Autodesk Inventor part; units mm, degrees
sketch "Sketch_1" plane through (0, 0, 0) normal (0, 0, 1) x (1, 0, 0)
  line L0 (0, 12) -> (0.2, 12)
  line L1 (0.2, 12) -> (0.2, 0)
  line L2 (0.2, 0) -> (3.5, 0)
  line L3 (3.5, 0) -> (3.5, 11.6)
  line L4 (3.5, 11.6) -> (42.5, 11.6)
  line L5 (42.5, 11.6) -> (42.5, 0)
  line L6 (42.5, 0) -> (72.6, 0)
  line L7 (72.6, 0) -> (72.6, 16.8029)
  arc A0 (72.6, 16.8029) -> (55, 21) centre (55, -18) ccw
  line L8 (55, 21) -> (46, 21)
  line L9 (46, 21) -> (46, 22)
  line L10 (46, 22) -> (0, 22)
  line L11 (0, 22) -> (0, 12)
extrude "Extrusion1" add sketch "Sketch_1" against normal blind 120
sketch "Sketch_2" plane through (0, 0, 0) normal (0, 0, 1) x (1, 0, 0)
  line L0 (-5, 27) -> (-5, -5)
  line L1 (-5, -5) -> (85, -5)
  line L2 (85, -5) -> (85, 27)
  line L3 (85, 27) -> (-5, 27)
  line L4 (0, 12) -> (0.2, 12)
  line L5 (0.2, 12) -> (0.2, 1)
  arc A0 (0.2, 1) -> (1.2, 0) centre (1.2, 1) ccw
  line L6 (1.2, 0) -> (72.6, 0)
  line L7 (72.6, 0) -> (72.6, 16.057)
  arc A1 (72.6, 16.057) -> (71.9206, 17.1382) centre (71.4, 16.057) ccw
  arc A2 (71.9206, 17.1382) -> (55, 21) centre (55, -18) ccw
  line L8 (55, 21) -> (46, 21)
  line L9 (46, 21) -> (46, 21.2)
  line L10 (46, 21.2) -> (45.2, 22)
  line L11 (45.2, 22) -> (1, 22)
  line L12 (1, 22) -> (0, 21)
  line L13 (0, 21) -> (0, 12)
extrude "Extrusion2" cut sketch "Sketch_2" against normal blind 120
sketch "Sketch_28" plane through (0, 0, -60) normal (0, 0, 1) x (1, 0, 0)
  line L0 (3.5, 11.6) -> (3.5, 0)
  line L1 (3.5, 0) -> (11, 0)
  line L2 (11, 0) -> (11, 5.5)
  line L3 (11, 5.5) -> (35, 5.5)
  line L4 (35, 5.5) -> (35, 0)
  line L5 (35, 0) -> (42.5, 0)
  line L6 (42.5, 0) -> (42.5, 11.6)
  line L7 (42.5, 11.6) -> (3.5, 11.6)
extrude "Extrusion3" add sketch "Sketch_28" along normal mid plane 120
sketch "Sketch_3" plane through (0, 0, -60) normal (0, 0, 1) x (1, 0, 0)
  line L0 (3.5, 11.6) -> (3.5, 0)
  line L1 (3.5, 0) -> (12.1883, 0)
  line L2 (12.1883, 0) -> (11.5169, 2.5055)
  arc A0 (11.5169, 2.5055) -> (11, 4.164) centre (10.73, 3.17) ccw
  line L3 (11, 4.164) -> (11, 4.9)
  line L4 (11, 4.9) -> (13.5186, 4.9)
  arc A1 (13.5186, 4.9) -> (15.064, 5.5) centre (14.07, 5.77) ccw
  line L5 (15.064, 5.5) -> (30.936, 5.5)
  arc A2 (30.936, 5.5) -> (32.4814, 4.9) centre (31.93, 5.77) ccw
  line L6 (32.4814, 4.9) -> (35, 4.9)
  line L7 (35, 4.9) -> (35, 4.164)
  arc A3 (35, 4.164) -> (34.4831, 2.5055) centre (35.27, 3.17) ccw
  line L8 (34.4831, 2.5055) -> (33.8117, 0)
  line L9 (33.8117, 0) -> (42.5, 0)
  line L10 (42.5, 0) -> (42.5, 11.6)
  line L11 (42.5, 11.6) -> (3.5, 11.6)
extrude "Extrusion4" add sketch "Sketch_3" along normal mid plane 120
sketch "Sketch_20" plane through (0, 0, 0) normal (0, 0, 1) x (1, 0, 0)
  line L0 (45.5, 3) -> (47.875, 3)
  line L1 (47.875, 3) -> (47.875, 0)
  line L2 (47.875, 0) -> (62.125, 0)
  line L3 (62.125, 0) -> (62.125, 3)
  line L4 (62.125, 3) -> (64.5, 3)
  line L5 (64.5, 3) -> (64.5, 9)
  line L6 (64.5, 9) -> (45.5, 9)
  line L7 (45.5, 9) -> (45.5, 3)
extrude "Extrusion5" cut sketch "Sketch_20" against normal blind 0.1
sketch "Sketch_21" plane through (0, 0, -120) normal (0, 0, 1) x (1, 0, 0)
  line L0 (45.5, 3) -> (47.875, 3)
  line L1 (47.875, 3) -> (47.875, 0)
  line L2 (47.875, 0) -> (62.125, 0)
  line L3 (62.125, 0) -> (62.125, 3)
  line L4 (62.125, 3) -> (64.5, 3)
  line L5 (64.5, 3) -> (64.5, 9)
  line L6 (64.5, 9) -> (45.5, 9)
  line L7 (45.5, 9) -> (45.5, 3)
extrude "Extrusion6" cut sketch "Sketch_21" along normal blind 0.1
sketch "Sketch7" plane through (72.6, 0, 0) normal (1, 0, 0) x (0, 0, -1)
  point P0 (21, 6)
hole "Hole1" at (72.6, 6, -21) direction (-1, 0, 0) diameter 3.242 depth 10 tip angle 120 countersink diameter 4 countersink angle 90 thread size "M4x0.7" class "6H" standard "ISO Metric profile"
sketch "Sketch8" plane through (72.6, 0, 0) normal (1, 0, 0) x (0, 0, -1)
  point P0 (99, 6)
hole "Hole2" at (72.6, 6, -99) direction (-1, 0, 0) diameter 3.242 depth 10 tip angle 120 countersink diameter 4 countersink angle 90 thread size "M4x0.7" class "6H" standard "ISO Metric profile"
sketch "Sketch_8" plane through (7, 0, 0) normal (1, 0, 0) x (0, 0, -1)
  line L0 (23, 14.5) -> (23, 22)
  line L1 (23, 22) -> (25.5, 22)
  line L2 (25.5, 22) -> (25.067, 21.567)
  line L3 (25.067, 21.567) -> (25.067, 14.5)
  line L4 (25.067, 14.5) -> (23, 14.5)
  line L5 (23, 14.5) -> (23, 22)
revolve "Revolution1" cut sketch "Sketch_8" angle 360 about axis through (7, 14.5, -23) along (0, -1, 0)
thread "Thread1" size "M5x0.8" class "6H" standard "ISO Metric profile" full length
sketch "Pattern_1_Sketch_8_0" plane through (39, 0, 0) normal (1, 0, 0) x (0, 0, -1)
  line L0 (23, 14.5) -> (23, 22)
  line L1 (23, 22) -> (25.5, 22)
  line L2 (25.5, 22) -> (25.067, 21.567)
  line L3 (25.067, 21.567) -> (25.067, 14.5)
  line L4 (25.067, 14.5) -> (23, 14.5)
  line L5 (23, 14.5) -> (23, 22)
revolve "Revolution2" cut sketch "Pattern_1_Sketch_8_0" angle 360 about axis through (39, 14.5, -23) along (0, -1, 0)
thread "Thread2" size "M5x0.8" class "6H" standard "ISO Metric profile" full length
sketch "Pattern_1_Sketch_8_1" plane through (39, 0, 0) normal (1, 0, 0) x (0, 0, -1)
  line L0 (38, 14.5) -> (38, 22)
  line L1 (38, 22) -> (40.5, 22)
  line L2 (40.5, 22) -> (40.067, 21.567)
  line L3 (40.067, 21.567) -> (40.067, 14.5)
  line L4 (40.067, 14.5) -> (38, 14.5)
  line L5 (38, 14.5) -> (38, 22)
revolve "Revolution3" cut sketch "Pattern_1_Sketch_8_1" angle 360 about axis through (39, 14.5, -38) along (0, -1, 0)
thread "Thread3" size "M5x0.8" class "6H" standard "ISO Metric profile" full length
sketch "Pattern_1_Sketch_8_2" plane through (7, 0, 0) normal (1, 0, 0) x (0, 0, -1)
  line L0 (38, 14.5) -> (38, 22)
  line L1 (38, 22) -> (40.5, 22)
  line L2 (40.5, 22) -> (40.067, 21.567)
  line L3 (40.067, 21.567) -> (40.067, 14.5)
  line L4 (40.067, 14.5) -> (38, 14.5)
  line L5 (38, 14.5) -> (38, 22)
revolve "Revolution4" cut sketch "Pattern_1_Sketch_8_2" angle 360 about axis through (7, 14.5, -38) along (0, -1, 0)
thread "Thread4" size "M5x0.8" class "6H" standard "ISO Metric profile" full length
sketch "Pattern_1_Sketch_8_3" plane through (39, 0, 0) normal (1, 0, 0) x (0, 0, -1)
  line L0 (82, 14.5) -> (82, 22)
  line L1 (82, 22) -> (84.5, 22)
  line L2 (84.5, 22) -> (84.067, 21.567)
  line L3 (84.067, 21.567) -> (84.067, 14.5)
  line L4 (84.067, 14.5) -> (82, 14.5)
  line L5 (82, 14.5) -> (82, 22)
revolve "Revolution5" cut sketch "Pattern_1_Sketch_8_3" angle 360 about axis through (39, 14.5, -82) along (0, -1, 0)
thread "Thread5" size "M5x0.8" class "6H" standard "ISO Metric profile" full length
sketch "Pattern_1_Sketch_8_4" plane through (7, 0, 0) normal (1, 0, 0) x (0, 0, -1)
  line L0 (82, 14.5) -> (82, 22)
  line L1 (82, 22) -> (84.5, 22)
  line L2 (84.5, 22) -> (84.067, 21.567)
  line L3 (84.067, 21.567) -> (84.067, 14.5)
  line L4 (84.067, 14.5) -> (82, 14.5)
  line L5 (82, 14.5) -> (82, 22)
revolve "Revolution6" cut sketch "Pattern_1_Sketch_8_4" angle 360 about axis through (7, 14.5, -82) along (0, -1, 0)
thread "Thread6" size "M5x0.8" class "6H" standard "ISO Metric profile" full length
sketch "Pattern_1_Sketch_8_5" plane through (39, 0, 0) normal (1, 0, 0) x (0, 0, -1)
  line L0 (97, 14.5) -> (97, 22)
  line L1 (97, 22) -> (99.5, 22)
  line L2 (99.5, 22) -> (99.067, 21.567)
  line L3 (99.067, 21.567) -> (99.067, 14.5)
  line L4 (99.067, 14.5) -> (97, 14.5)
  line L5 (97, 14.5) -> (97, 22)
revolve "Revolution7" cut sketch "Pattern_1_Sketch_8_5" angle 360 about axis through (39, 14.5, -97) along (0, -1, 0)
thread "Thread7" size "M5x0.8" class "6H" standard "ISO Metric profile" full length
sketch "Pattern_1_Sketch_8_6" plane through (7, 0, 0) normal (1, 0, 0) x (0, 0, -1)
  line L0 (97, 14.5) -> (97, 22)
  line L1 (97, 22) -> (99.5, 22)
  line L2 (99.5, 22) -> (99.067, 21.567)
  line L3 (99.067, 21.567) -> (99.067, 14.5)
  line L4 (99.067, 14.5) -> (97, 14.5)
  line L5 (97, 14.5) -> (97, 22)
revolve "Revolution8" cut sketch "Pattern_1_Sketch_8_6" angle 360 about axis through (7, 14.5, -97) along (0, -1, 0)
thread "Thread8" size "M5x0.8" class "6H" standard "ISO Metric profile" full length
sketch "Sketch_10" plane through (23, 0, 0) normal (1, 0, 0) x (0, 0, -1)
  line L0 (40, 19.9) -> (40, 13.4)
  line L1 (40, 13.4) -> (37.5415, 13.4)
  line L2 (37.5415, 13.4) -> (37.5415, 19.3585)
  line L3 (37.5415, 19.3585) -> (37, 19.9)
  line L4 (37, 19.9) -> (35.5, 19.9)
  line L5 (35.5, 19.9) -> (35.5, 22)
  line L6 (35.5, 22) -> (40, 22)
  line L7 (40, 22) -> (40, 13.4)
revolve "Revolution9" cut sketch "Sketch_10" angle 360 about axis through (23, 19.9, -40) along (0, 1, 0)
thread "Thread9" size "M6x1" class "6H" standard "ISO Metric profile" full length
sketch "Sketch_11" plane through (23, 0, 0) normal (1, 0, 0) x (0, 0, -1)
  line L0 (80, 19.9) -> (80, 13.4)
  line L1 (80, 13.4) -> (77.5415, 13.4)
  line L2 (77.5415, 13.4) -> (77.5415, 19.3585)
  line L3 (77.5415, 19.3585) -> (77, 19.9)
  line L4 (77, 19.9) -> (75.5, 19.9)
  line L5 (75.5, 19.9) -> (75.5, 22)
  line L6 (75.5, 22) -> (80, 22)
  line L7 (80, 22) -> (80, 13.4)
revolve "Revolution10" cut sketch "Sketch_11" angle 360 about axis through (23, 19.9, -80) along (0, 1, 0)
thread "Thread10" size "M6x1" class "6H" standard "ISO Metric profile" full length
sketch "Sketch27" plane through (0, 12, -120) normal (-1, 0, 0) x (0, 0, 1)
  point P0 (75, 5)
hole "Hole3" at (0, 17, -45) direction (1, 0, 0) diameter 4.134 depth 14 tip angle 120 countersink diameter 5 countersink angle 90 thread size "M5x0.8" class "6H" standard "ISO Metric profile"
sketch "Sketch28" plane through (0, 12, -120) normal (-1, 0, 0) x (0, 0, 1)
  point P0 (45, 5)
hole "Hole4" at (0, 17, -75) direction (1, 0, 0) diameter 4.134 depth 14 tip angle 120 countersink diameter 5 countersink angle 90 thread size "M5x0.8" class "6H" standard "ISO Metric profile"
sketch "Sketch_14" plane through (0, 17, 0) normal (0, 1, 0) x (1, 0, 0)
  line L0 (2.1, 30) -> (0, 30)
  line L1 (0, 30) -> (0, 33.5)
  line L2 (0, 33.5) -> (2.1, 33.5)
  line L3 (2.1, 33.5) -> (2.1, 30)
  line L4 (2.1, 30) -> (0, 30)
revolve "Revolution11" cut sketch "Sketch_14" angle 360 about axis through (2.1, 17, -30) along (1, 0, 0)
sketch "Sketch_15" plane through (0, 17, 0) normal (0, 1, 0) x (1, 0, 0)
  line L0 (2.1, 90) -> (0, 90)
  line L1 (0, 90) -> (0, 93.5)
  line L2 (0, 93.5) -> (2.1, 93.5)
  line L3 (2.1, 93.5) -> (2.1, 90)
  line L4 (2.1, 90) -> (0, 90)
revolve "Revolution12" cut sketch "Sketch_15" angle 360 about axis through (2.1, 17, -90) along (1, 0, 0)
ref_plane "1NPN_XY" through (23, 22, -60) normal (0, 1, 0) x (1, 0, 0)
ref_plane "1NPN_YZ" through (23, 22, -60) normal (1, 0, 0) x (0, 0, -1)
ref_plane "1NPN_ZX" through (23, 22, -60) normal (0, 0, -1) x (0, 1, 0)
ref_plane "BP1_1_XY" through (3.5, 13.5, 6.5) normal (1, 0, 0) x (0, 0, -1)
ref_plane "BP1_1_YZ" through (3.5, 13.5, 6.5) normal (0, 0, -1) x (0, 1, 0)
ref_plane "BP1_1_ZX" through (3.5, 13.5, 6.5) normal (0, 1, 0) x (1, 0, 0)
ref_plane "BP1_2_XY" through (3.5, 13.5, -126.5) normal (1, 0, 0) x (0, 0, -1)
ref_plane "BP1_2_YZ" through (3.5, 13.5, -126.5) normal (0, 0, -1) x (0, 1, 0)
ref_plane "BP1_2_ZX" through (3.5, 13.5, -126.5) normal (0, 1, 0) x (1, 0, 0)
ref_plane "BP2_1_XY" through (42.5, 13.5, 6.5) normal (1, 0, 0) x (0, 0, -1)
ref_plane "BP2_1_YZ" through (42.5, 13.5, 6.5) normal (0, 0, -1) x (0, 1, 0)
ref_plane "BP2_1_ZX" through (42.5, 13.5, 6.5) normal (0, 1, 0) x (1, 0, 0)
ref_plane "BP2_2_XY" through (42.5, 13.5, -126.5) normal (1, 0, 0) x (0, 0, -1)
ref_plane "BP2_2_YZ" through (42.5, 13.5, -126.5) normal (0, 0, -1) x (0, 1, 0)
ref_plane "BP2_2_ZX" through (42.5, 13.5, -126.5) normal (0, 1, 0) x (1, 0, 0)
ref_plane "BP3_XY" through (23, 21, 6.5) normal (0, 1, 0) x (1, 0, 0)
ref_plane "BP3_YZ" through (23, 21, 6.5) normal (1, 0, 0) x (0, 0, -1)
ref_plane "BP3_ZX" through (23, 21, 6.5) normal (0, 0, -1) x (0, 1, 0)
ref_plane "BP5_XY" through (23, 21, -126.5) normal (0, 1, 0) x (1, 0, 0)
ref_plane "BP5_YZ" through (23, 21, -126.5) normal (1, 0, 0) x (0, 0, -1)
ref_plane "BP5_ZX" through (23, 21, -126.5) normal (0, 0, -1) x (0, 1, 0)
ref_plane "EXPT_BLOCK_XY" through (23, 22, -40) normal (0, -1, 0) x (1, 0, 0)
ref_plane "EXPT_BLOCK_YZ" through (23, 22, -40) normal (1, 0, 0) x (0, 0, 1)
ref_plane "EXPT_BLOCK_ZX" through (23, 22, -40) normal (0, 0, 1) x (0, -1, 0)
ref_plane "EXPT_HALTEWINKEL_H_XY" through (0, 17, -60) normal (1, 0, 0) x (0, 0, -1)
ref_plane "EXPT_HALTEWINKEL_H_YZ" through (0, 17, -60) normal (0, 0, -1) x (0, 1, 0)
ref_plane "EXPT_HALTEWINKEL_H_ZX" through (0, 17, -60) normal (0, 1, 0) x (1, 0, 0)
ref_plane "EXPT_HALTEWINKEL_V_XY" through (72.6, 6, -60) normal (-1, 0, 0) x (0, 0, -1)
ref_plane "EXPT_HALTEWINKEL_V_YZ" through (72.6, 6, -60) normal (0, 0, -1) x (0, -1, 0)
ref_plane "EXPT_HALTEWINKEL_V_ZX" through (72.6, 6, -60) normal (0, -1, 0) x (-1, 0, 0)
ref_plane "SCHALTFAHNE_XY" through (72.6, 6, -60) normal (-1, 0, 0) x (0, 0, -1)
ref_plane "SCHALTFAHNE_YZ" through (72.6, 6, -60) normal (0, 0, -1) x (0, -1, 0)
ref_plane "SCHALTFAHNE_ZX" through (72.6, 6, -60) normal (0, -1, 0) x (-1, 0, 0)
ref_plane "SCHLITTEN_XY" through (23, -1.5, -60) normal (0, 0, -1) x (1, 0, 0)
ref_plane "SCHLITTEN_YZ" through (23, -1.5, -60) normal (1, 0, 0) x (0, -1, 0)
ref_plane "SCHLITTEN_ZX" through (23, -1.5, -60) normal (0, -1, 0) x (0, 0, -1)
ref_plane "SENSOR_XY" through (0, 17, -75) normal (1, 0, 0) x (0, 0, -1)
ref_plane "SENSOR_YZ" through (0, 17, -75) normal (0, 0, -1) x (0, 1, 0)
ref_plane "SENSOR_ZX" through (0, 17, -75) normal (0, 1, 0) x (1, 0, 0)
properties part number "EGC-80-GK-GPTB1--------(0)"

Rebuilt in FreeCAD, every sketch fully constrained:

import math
import FreeCAD as App
import Part
import Sketcher

V = App.Vector
Q = App.Units.Quantity


def add_polygon(sketch, points):
    """Adds a closed chain of lines whose ends are joined by coincident constraints."""
    first, n = sketch.GeometryCount, len(points)
    for a, b in zip(points, points[1:] + points[:1]):
        sketch.addGeometry(Part.LineSegment(App.Vector(*a, 0), App.Vector(*b, 0)), False)
    for i in range(n):
        sketch.addConstraint(Sketcher.Constraint("Coincident", first + i, 2, first + (i + 1) % n, 1))

doc = App.newDocument("Part")
body = doc.addObject("PartDesign::Body", "Body")

sketch1 = body.newObject("Sketcher::SketchObject", "Sketch")
sketch1.AttachmentSupport = (doc.getObject("XY_Plane"), [""])
sketch1.MapMode = "FlatFace"
sketch1.addGeometry([
    Part.LineSegment(V(0, 22, 0), V(0, 12, 0)),
    Part.LineSegment(V(0, 12, 0), V(0.2, 12, 0)),
    Part.LineSegment(V(0.2, 12, 0), V(0.2, 0, 0)),
    Part.LineSegment(V(0.2, 0, 0), V(3.5, 0, 0)),
    Part.LineSegment(V(3.5, 0, 0), V(3.5, 11.6, 0)),
    Part.LineSegment(V(3.5, 11.6, 0), V(42.5, 11.6, 0)),
    Part.LineSegment(V(42.5, 11.6, 0), V(42.5, 0, 0)),
    Part.LineSegment(V(42.5, 0, 0), V(72.6, 0, 0)),
    Part.LineSegment(V(72.6, 0, 0), V(72.6, 16.8, 0)),
    Part.ArcOfCircle(Part.Circle(V(55, -18, 0), V(0, 0, 1), 39), math.radians(63), math.radians(90)),
    Part.LineSegment(V(55, 21, 0), V(46, 21, 0)),
    Part.LineSegment(V(46, 21, 0), V(46, 22, 0)),
    Part.LineSegment(V(46, 22, 0), V(0, 22, 0)),
], False)
sketch1.addConstraint([
    Sketcher.Constraint("Coincident", 0, 2, 1, 1),
    Sketcher.Constraint("Coincident", 1, 2, 2, 1),
    Sketcher.Constraint("Coincident", 2, 2, 3, 1),
    Sketcher.Constraint("Coincident", 3, 2, 4, 1),
    Sketcher.Constraint("Coincident", 4, 2, 5, 1),
    Sketcher.Constraint("Coincident", 5, 2, 6, 1),
    Sketcher.Constraint("Coincident", 6, 2, 7, 1),
    Sketcher.Constraint("Coincident", 7, 2, 8, 1),
    Sketcher.Constraint("Coincident", 8, 2, 9, 1),
    Sketcher.Constraint("Tangent", 9, 2, 10, 1),
    Sketcher.Constraint("Coincident", 10, 2, 11, 1),
    Sketcher.Constraint("Coincident", 11, 2, 12, 1),
    Sketcher.Constraint("Coincident", 12, 2, 0, 1),
    Sketcher.Constraint("Vertical", 0),
    Sketcher.Constraint("Horizontal", 1),
    Sketcher.Constraint("Vertical", 2),
    Sketcher.Constraint("Horizontal", 3),
    Sketcher.Constraint("Vertical", 4),
    Sketcher.Constraint("Horizontal", 5),
    Sketcher.Constraint("Vertical", 6),
    Sketcher.Constraint("Horizontal", 7),
    Sketcher.Constraint("Vertical", 8),
    Sketcher.Constraint("Horizontal", 10),
    Sketcher.Constraint("Vertical", 11),
    Sketcher.Constraint("Horizontal", 12),
    Sketcher.Constraint("PointOnObject", 0, 2, -2),
    Sketcher.Constraint("PointOnObject", 2, 2, -1),
    Sketcher.Constraint("PointOnObject", 6, 2, -1),
    Sketcher.Constraint("Radius", 9, 39.0),
    Sketcher.Constraint("DistanceX", 5, 1, 5, 2, 39.0),
    Sketcher.Constraint("DistanceX", 10, 2, 10, 1, 9.0),
    Sketcher.Constraint("DistanceX", 12, 2, 12, 1, 46.0),
    Sketcher.Constraint("DistanceY", 0, 2, 0, 1, 10.0),
    Sketcher.Constraint("DistanceY", 2, 2, 2, 1, 12.0),
    Sketcher.Constraint("DistanceY", 11, 1, 11, 2, 1.0),
    Sketcher.Constraint("DistanceX", 1, 1, 1, 2, 0.2),
    Sketcher.Constraint("DistanceX", 3, 1, 3, 2, 3.3),
    Sketcher.Constraint("DistanceX", 7, 1, 7, 2, 30.1),
    Sketcher.Constraint("DistanceY", 4, 1, 4, 2, 11.6),
])
pad1 = body.newObject("PartDesign::Pad", "Pad")
pad1.Profile = sketch1
pad1.Length = 120
pad1.Reversed = True

sketch2 = body.newObject("Sketcher::SketchObject", "Sketch001")
sketch2.AttachmentSupport = (doc.getObject("XY_Plane"), [""])
sketch2.MapMode = "FlatFace"
add_polygon(sketch2, [(85, 27), (-5, 27), (-5, -5), (85, -5)])
sketch2.addGeometry(Part.LineSegment(V(0.2, 12, 0), V(0, 12, 0)), False)
sketch2.addGeometry(Part.LineSegment(V(0, 12, 0), V(0, 21, 0)), False)
sketch2.addGeometry(Part.LineSegment(V(0, 21, 0), V(1, 22, 0)), False)
sketch2.addGeometry(Part.LineSegment(V(1, 22, 0), V(45.2, 22, 0)), False)
sketch2.addGeometry(Part.LineSegment(V(45.2, 22, 0), V(46, 21.2, 0)), False)
sketch2.addGeometry(Part.LineSegment(V(46, 21.2, 0), V(46, 21, 0)), False)
sketch2.addGeometry(Part.LineSegment(V(46, 21, 0), V(55, 21, 0)), False)
sketch2.addGeometry(Part.ArcOfCircle(Part.Circle(V(55, -18, 0), V(0, 0, 1), 39), math.radians(64), math.radians(90)), False)
sketch2.addGeometry(Part.ArcOfCircle(Part.Circle(V(71.4, 16.06, 0), V(0, 0, 1), 1.2), math.radians(0), math.radians(64)), False)
sketch2.addGeometry(Part.LineSegment(V(72.6, 16.06, 0), V(72.6, 0, 0)), False)
sketch2.addGeometry(Part.LineSegment(V(72.6, 0, 0), V(1.2, 0, 0)), False)
sketch2.addGeometry(Part.ArcOfCircle(Part.Circle(V(1.2, 1, 0), V(0, 0, 1), 1), math.radians(180), math.radians(270)), False)
sketch2.addGeometry(Part.LineSegment(V(0.2, 1, 0), V(0.2, 12, 0)), False)
sketch2.addConstraint([
    Sketcher.Constraint("Coincident", 4, 2, 5, 1),
    Sketcher.Constraint("Coincident", 5, 2, 6, 1),
    Sketcher.Constraint("Coincident", 6, 2, 7, 1),
    Sketcher.Constraint("Coincident", 7, 2, 8, 1),
    Sketcher.Constraint("Coincident", 8, 2, 9, 1),
    Sketcher.Constraint("Coincident", 9, 2, 10, 1),
    Sketcher.Constraint("Tangent", 10, 2, 11, 2),
    Sketcher.Constraint("Tangent", 11, 1, 12, 2),
    Sketcher.Constraint("Tangent", 12, 1, 13, 1),
    Sketcher.Constraint("Coincident", 13, 2, 14, 1),
    Sketcher.Constraint("Tangent", 14, 2, 15, 2),
    Sketcher.Constraint("Tangent", 15, 1, 16, 1),
    Sketcher.Constraint("Coincident", 16, 2, 4, 1),
    Sketcher.Constraint("Horizontal", 0),
    Sketcher.Constraint("Vertical", 1),
    Sketcher.Constraint("Horizontal", 2),
    Sketcher.Constraint("Vertical", 3),
    Sketcher.Constraint("Horizontal", 4),
    Sketcher.Constraint("Vertical", 5),
    Sketcher.Constraint("Horizontal", 7),
    Sketcher.Constraint("Vertical", 9),
    Sketcher.Constraint("Horizontal", 10),
    Sketcher.Constraint("Vertical", 13),
    Sketcher.Constraint("Horizontal", 14),
    Sketcher.Constraint("Vertical", 16),
    Sketcher.Constraint("PointOnObject", 4, 2, -2),
    Sketcher.Constraint("PointOnObject", 13, 2, -1),
    Sketcher.Constraint("Perpendicular", 6, 8),
    Sketcher.Constraint("Horizontal", 5, 2, 9, 2),
    Sketcher.Constraint("Equal", 10, 5),
    Sketcher.Constraint("Equal", 4, 9),
    Sketcher.Constraint("Radius", 11, 39.0),
    Sketcher.Constraint("Radius", 15, 1.0),
    Sketcher.Constraint("Radius", 12, 1.2),
    Sketcher.Constraint("DistanceX", 0, 2, 0, 1, 90.0),
    Sketcher.Constraint("DistanceX", 10, 1, 10, 2, 9.0),
    Sketcher.Constraint("DistanceY", 1, 2, 1, 1, 32.0),
    Sketcher.Constraint("DistanceY", 16, 1, 16, 2, 11.0),
    Sketcher.Constraint("Angle", 6, Q("45 deg")),
    Sketcher.Constraint("DistanceX", 4, 2, 4, 1, 0.2),
    Sketcher.Constraint("DistanceX", 7, 1, 7, 2, 44.2),
    Sketcher.Constraint("DistanceX", 14, 2, 14, 1, 71.4),
    Sketcher.Constraint("DistanceX", -1, 1, 11, 3, 55.0),
    Sketcher.Constraint("DistanceX", 0, 2, -1, 1, 5.0),
    Sketcher.Constraint("DistanceY", -1, 1, 0, 2, 27.0),
])
pocket1 = body.newObject("PartDesign::Pocket", "Pocket")
pocket1.Profile = sketch2
pocket1.Length = 120

sketch3 = body.newObject("Sketcher::SketchObject", "Sketch002")
sketch3.AttachmentSupport = (doc.getObject("XY_Plane"), [""])
sketch3.MapMode = "FlatFace"
sketch3.AttachmentOffset = App.Placement(V(0, 0, -60), App.Rotation())
add_polygon(sketch3, [(42, 12), (4, 12), (4, 0), (11, 0), (11, 6), (35, 6), (35, 0), (42, 0)])
sketch3.addConstraint([
    Sketcher.Constraint("Horizontal", 0),
    Sketcher.Constraint("Vertical", 1),
    Sketcher.Constraint("Horizontal", 2),
    Sketcher.Constraint("Vertical", 3),
    Sketcher.Constraint("Horizontal", 4),
    Sketcher.Constraint("Vertical", 5),
    Sketcher.Constraint("Horizontal", 6),
    Sketcher.Constraint("Vertical", 7),
    Sketcher.Constraint("PointOnObject", 1, 2, -1),
    Sketcher.Constraint("PointOnObject", 5, 2, -1),
    Sketcher.Constraint("Equal", 2, 6),
    Sketcher.Constraint("DistanceX", 0, 2, 0, 1, 39.0),
    Sketcher.Constraint("DistanceX", 4, 1, 4, 2, 24.0),
    Sketcher.Constraint("DistanceY", 1, 2, 1, 1, 11.6),
    Sketcher.Constraint("DistanceY", 3, 1, 3, 2, 5.5),
    Sketcher.Constraint("DistanceX", -1, 1, 2, 2, 11.0),
])
pad2 = body.newObject("PartDesign::Pad", "Pad001")
pad2.Profile = sketch3
pad2.Length = 120
pad2.Midplane = True

sketch4 = body.newObject("Sketcher::SketchObject", "Sketch003")
sketch4.AttachmentSupport = (doc.getObject("XY_Plane"), [""])
sketch4.MapMode = "FlatFace"
sketch4.AttachmentOffset = App.Placement(V(0, 0, -60), App.Rotation())
sketch4.addGeometry([
    Part.LineSegment(V(42.5, 11.6, 0), V(3.5, 11.6, 0)),
    Part.LineSegment(V(3.5, 11.6, 0), V(3.5, 0, 0)),
    Part.LineSegment(V(3.5, 0, 0), V(12.2, 0, 0)),
    Part.LineSegment(V(12.2, 0, 0), V(11.5, 2.5, 0)),
    Part.ArcOfCircle(Part.Circle(V(10.7, 3.2, 0), V(0, 0, 1), 1), math.radians(-40), math.radians(75)),
    Part.LineSegment(V(11, 4.2, 0), V(11, 4.9, 0)),
    Part.LineSegment(V(11, 4.9, 0), V(13.5, 4.9, 0)),
    Part.ArcOfCircle(Part.Circle(V(14.1, 5.8, 0), V(0, 0, 1), 1), math.radians(-122), math.radians(-15)),
    Part.LineSegment(V(15.1, 5.5, 0), V(30.9, 5.5, 0)),
    Part.ArcOfCircle(Part.Circle(V(31.9, 5.8, 0), V(0, 0, 1), 1), math.radians(-165), math.radians(-58)),
    Part.LineSegment(V(32.5, 4.9, 0), V(35, 4.9, 0)),
    Part.LineSegment(V(35, 4.9, 0), V(35, 4.2, 0)),
    Part.ArcOfCircle(Part.Circle(V(35.3, 3.2, 0), V(0, 0, 1), 1), math.radians(105), math.radians(220)),
    Part.LineSegment(V(34.5, 2.5, 0), V(33.8, 0, 0)),
    Part.LineSegment(V(33.8, 0, 0), V(42.5, 0, 0)),
    Part.LineSegment(V(42.5, 0, 0), V(42.5, 11.6, 0)),
], False)
sketch4.addConstraint([
    Sketcher.Constraint("Coincident", 0, 2, 1, 1),
    Sketcher.Constraint("Coincident", 1, 2, 2, 1),
    Sketcher.Constraint("Coincident", 2, 2, 3, 1),
    Sketcher.Constraint("Coincident", 3, 2, 4, 1),
    Sketcher.Constraint("Coincident", 4, 2, 5, 1),
    Sketcher.Constraint("Coincident", 5, 2, 6, 1),
    Sketcher.Constraint("Coincident", 6, 2, 7, 1),
    Sketcher.Constraint("Coincident", 7, 2, 8, 1),
    Sketcher.Constraint("Coincident", 8, 2, 9, 1),
    Sketcher.Constraint("Coincident", 9, 2, 10, 1),
    Sketcher.Constraint("Coincident", 10, 2, 11, 1),
    Sketcher.Constraint("Coincident", 11, 2, 12, 1),
    Sketcher.Constraint("Coincident", 12, 2, 13, 1),
    Sketcher.Constraint("Coincident", 13, 2, 14, 1),
    Sketcher.Constraint("Coincident", 14, 2, 15, 1),
    Sketcher.Constraint("Coincident", 15, 2, 0, 1),
    Sketcher.Constraint("Horizontal", 0),
    Sketcher.Constraint("Vertical", 1),
    Sketcher.Constraint("Horizontal", 2),
    Sketcher.Constraint("Vertical", 5),
    Sketcher.Constraint("Horizontal", 6),
    Sketcher.Constraint("Horizontal", 8),
    Sketcher.Constraint("Horizontal", 10),
    Sketcher.Constraint("Vertical", 11),
    Sketcher.Constraint("Horizontal", 14),
    Sketcher.Constraint("Vertical", 15),
    Sketcher.Constraint("Equal", 4, 7),
    Sketcher.Constraint("Equal", 7, 9),
    Sketcher.Constraint("Equal", 9, 12),
    Sketcher.Constraint("PointOnObject", 1, 2, -1),
    Sketcher.Constraint("PointOnObject", 13, 2, -1),
    Sketcher.Constraint("Horizontal", 7, 3, 9, 3),
    Sketcher.Constraint("Horizontal", 4, 3, 12, 3),
    Sketcher.Constraint("Horizontal", 6, 2, 9, 2),
    Sketcher.Constraint("Horizontal", 4, 2, 11, 2),
    Sketcher.Constraint("Horizontal", 3, 2, 12, 2),
    Sketcher.Constraint("Equal", 6, 10),
    Sketcher.Constraint("Equal", 2, 14),
    Sketcher.Constraint("Equal", 3, 13),
    Sketcher.Constraint("DistanceX", 0, 2, 0, 1, 39.0),
    Sketcher.Constraint("Angle", 3, Q("105.0011 deg")),
    Sketcher.Constraint("Radius", 4, 1.03),
    Sketcher.Constraint("DistanceY", 1, 2, 1, 1, 11.6),
    Sketcher.Constraint("DistanceX", -1, 1, 4, 2, 11.0),
    Sketcher.Constraint("DistanceX", -1, 1, 10, 2, 35.0),
    Sketcher.Constraint("DistanceY", -1, 1, 5, 2, 4.9),
    Sketcher.Constraint("DistanceY", -1, 1, 7, 2, 5.5),
    Sketcher.Constraint("DistanceY", 4, 3, 7, 3, 2.6),
    Sketcher.Constraint("DistanceX", 4, 3, 9, 3, 21.2),
    Sketcher.Constraint("DistanceX", 8, 1, 8, 2, 15.872),
    Sketcher.Constraint("DistanceY", 5, 1, 5, 2, 0.736),
    Sketcher.Constraint("Distance", 3, 2.594),
])
pad3 = body.newObject("PartDesign::Pad", "Pad002")
pad3.Profile = sketch4
pad3.Length = 120
pad3.Midplane = True

sketch5 = body.newObject("Sketcher::SketchObject", "Sketch004")
sketch5.AttachmentSupport = (doc.getObject("XY_Plane"), [""])
sketch5.MapMode = "FlatFace"
add_polygon(sketch5, [(45.5, 9), (45.5, 3), (47.9, 3), (47.9, 0), (62.1, 0), (62.1, 3), (64.5, 3), (64.5, 9)])
sketch5.addConstraint([
    Sketcher.Constraint("Vertical", 0),
    Sketcher.Constraint("Horizontal", 1),
    Sketcher.Constraint("Vertical", 2),
    Sketcher.Constraint("Horizontal", 3),
    Sketcher.Constraint("Vertical", 4),
    Sketcher.Constraint("Horizontal", 5),
    Sketcher.Constraint("Vertical", 6),
    Sketcher.Constraint("Horizontal", 7),
    Sketcher.Constraint("PointOnObject", 2, 2, -1),
    Sketcher.Constraint("Horizontal", 1, 2, 4, 2),
    Sketcher.Constraint("Equal", 1, 5),
    Sketcher.Constraint("DistanceX", 7, 2, 7, 1, 19.0),
    Sketcher.Constraint("DistanceY", 0, 2, 0, 1, 6.0),
    Sketcher.Constraint("DistanceY", 2, 2, 2, 1, 3.0),
    Sketcher.Constraint("DistanceX", 3, 1, 3, 2, 14.25),
    Sketcher.Constraint("DistanceX", -1, 1, 0, 2, 45.5),
])
pocket2 = body.newObject("PartDesign::Pocket", "Pocket001")
pocket2.Profile = sketch5
pocket2.Length = 0.1

sketch6 = body.newObject("Sketcher::SketchObject", "Sketch005")
sketch6.AttachmentSupport = (doc.getObject("XY_Plane"), [""])
sketch6.MapMode = "FlatFace"
sketch6.AttachmentOffset = App.Placement(V(0, 0, -120), App.Rotation())
add_polygon(sketch6, [(45.5, 9), (45.5, 3), (47.9, 3), (47.9, 0), (62.1, 0), (62.1, 3), (64.5, 3), (64.5, 9)])
sketch6.addConstraint([
    Sketcher.Constraint("Vertical", 0),
    Sketcher.Constraint("Horizontal", 1),
    Sketcher.Constraint("Vertical", 2),
    Sketcher.Constraint("Horizontal", 3),
    Sketcher.Constraint("Vertical", 4),
    Sketcher.Constraint("Horizontal", 5),
    Sketcher.Constraint("Vertical", 6),
    Sketcher.Constraint("Horizontal", 7),
    Sketcher.Constraint("PointOnObject", 2, 2, -1),
    Sketcher.Constraint("Horizontal", 1, 2, 4, 2),
    Sketcher.Constraint("Equal", 1, 5),
    Sketcher.Constraint("DistanceX", 7, 2, 7, 1, 19.0),
    Sketcher.Constraint("DistanceY", 0, 2, 0, 1, 6.0),
    Sketcher.Constraint("DistanceY", 2, 2, 2, 1, 3.0),
    Sketcher.Constraint("DistanceX", 3, 1, 3, 2, 14.25),
    Sketcher.Constraint("DistanceX", -1, 1, 0, 2, 45.5),
])
pocket3 = body.newObject("PartDesign::Pocket", "Pocket002")
pocket3.Profile = sketch6
pocket3.Length = 0.1
pocket3.Reversed = True

sketch7 = body.newObject("Sketcher::SketchObject", "Sketch006")
sketch7.AttachmentSupport = (doc.getObject("YZ_Plane"), [""])
sketch7.MapMode = "FlatFace"
sketch7.AttachmentOffset = App.Placement(V(0, 0, 72.6), App.Rotation())
sketch7.addGeometry(Part.Circle(V(6, -21, 0), V(0, 0, 1), 1.6), False)
sketch7.addConstraint([
    Sketcher.Constraint("Diameter", 0, 3.242),
    Sketcher.Constraint("DistanceX", -1, 1, 0, 3, 6.0),
    Sketcher.Constraint("DistanceY", 0, 3, -1, 1, 21.0),
])
doc.recompute()
hole = body.newObject("PartDesign::Hole", "Hole")
hole.Profile = sketch7
hole.ThreadType = "None"
hole.Diameter = 3.242
hole.DepthType = "Dimension"
hole.Depth = 10
hole.DrillPoint = "Angled"
hole.DrillPointAngle = 120
hole.HoleCutType = "Countersink"
hole.HoleCutDiameter = 4
hole.HoleCutCountersinkAngle = 90

sketch8 = body.newObject("Sketcher::SketchObject", "Sketch007")
sketch8.AttachmentSupport = (doc.getObject("YZ_Plane"), [""])
sketch8.MapMode = "FlatFace"
sketch8.AttachmentOffset = App.Placement(V(0, 0, 72.6), App.Rotation())
sketch8.addGeometry(Part.Circle(V(6, -99, 0), V(0, 0, 1), 1.6), False)
sketch8.addConstraint([
    Sketcher.Constraint("Diameter", 0, 3.242),
    Sketcher.Constraint("DistanceX", -1, 1, 0, 3, 6.0),
    Sketcher.Constraint("DistanceY", 0, 3, -1, 1, 99.0),
])
doc.recompute()
hole2 = body.newObject("PartDesign::Hole", "Hole001")
hole2.Profile = sketch8
hole2.ThreadType = "None"
hole2.Diameter = 3.242
hole2.DepthType = "Dimension"
hole2.Depth = 10
hole2.DrillPoint = "Angled"
hole2.DrillPointAngle = 120
hole2.HoleCutType = "Countersink"
hole2.HoleCutDiameter = 4
hole2.HoleCutCountersinkAngle = 90

sketch9 = body.newObject("Sketcher::SketchObject", "Sketch008")
sketch9.AttachmentSupport = (doc.getObject("YZ_Plane"), [""])
sketch9.MapMode = "FlatFace"
sketch9.AttachmentOffset = App.Placement(V(0, 0, 7), App.Rotation())
add_polygon(sketch9, [(22, -23), (14.5, -23), (14.5, -25.1), (21.6, -25.1), (22, -25.5)])
sketch9.addGeometry(Part.LineSegment(V(22, -23, 0), V(14.5, -23, 0)), True)
sketch9.addConstraint([
    Sketcher.Constraint("Horizontal", 0),
    Sketcher.Constraint("Vertical", 1),
    Sketcher.Constraint("Horizontal", 2),
    Sketcher.Constraint("Vertical", 4),
    Sketcher.Constraint("Horizontal", 5),
    Sketcher.Constraint("Coincident", 5, 1, 4, 2),
    Sketcher.Constraint("Vertical", 1, 2, 5, 2),
    Sketcher.Constraint("Angle", 3, Q("-45 deg")),
    Sketcher.Constraint("DistanceX", 0, 2, 0, 1, 7.5),
    Sketcher.Constraint("DistanceY", 4, 1, 4, 2, 2.5),
    Sketcher.Constraint("DistanceY", 0, 2, -1, 1, 23.0),
    Sketcher.Constraint("DistanceX", -1, 1, 3, 2, 22.0),
    Sketcher.Constraint("DistanceX", 2, 1, 2, 2, 7.067),
])
groove = body.newObject("PartDesign::Groove", "Groove")
groove.Profile = sketch9
groove.ReferenceAxis = (sketch9, ["Axis0"])
groove.Angle = 360

sketch10 = body.newObject("Sketcher::SketchObject", "Sketch009")
sketch10.AttachmentSupport = (doc.getObject("YZ_Plane"), [""])
sketch10.MapMode = "FlatFace"
sketch10.AttachmentOffset = App.Placement(V(0, 0, 39), App.Rotation())
add_polygon(sketch10, [(22, -23), (14.5, -23), (14.5, -25.1), (21.6, -25.1), (22, -25.5)])
sketch10.addGeometry(Part.LineSegment(V(22, -23, 0), V(14.5, -23, 0)), True)
sketch10.addConstraint([
    Sketcher.Constraint("Horizontal", 0),
    Sketcher.Constraint("Vertical", 1),
    Sketcher.Constraint("Horizontal", 2),
    Sketcher.Constraint("Vertical", 4),
    Sketcher.Constraint("Horizontal", 5),
    Sketcher.Constraint("Coincident", 5, 1, 4, 2),
    Sketcher.Constraint("Vertical", 1, 2, 5, 2),
    Sketcher.Constraint("Angle", 3, Q("-45 deg")),
    Sketcher.Constraint("DistanceX", 0, 2, 0, 1, 7.5),
    Sketcher.Constraint("DistanceY", 4, 1, 4, 2, 2.5),
    Sketcher.Constraint("DistanceY", 0, 2, -1, 1, 23.0),
    Sketcher.Constraint("DistanceX", -1, 1, 3, 2, 22.0),
    Sketcher.Constraint("DistanceX", 2, 1, 2, 2, 7.067),
])
groove2 = body.newObject("PartDesign::Groove", "Groove001")
groove2.Profile = sketch10
groove2.ReferenceAxis = (sketch10, ["Axis0"])
groove2.Angle = 360

sketch11 = body.newObject("Sketcher::SketchObject", "Sketch010")
sketch11.AttachmentSupport = (doc.getObject("YZ_Plane"), [""])
sketch11.MapMode = "FlatFace"
sketch11.AttachmentOffset = App.Placement(V(0, 0, 39), App.Rotation())
add_polygon(sketch11, [(22, -38), (14.5, -38), (14.5, -40.1), (21.6, -40.1), (22, -40.5)])
sketch11.addGeometry(Part.LineSegment(V(22, -38, 0), V(14.5, -38, 0)), True)
sketch11.addConstraint([
    Sketcher.Constraint("Horizontal", 0),
    Sketcher.Constraint("Vertical", 1),
    Sketcher.Constraint("Horizontal", 2),
    Sketcher.Constraint("Vertical", 4),
    Sketcher.Constraint("Horizontal", 5),
    Sketcher.Constraint("Coincident", 5, 1, 4, 2),
    Sketcher.Constraint("Vertical", 1, 2, 5, 2),
    Sketcher.Constraint("Angle", 3, Q("-45 deg")),
    Sketcher.Constraint("DistanceX", 0, 2, 0, 1, 7.5),
    Sketcher.Constraint("DistanceY", 4, 1, 4, 2, 2.5),
    Sketcher.Constraint("DistanceY", 0, 2, -1, 1, 38.0),
    Sketcher.Constraint("DistanceX", -1, 1, 3, 2, 22.0),
    Sketcher.Constraint("DistanceX", 2, 1, 2, 2, 7.067),
])
groove3 = body.newObject("PartDesign::Groove", "Groove002")
groove3.Profile = sketch11
groove3.ReferenceAxis = (sketch11, ["Axis0"])
groove3.Angle = 360

sketch12 = body.newObject("Sketcher::SketchObject", "Sketch011")
sketch12.AttachmentSupport = (doc.getObject("YZ_Plane"), [""])
sketch12.MapMode = "FlatFace"
sketch12.AttachmentOffset = App.Placement(V(0, 0, 7), App.Rotation())
add_polygon(sketch12, [(22, -38), (14.5, -38), (14.5, -40.1), (21.6, -40.1), (22, -40.5)])
sketch12.addGeometry(Part.LineSegment(V(22, -38, 0), V(14.5, -38, 0)), True)
sketch12.addConstraint([
    Sketcher.Constraint("Horizontal", 0),
    Sketcher.Constraint("Vertical", 1),
    Sketcher.Constraint("Horizontal", 2),
    Sketcher.Constraint("Vertical", 4),
    Sketcher.Constraint("Horizontal", 5),
    Sketcher.Constraint("Coincident", 5, 1, 4, 2),
    Sketcher.Constraint("Vertical", 1, 2, 5, 2),
    Sketcher.Constraint("Angle", 3, Q("-45 deg")),
    Sketcher.Constraint("DistanceX", 0, 2, 0, 1, 7.5),
    Sketcher.Constraint("DistanceY", 4, 1, 4, 2, 2.5),
    Sketcher.Constraint("DistanceY", 0, 2, -1, 1, 38.0),
    Sketcher.Constraint("DistanceX", -1, 1, 3, 2, 22.0),
    Sketcher.Constraint("DistanceX", 2, 1, 2, 2, 7.067),
])
groove4 = body.newObject("PartDesign::Groove", "Groove003")
groove4.Profile = sketch12
groove4.ReferenceAxis = (sketch12, ["Axis0"])
groove4.Angle = 360

sketch13 = body.newObject("Sketcher::SketchObject", "Sketch012")
sketch13.AttachmentSupport = (doc.getObject("YZ_Plane"), [""])
sketch13.MapMode = "FlatFace"
sketch13.AttachmentOffset = App.Placement(V(0, 0, 39), App.Rotation())
add_polygon(sketch13, [(22, -82), (14.5, -82), (14.5, -84.1), (21.6, -84.1), (22, -84.5)])
sketch13.addGeometry(Part.LineSegment(V(22, -82, 0), V(14.5, -82, 0)), True)
sketch13.addConstraint([
    Sketcher.Constraint("Horizontal", 0),
    Sketcher.Constraint("Vertical", 1),
    Sketcher.Constraint("Horizontal", 2),
    Sketcher.Constraint("Vertical", 4),
    Sketcher.Constraint("Horizontal", 5),
    Sketcher.Constraint("Coincident", 5, 1, 4, 2),
    Sketcher.Constraint("Vertical", 1, 2, 5, 2),
    Sketcher.Constraint("Angle", 3, Q("-45 deg")),
    Sketcher.Constraint("DistanceX", 0, 2, 0, 1, 7.5),
    Sketcher.Constraint("DistanceY", 4, 1, 4, 2, 2.5),
    Sketcher.Constraint("DistanceY", 0, 2, -1, 1, 82.0),
    Sketcher.Constraint("DistanceX", -1, 1, 3, 2, 22.0),
    Sketcher.Constraint("DistanceX", 2, 1, 2, 2, 7.067),
])
groove5 = body.newObject("PartDesign::Groove", "Groove004")
groove5.Profile = sketch13
groove5.ReferenceAxis = (sketch13, ["Axis0"])
groove5.Angle = 360

sketch14 = body.newObject("Sketcher::SketchObject", "Sketch013")
sketch14.AttachmentSupport = (doc.getObject("YZ_Plane"), [""])
sketch14.MapMode = "FlatFace"
sketch14.AttachmentOffset = App.Placement(V(0, 0, 7), App.Rotation())
add_polygon(sketch14, [(22, -82), (14.5, -82), (14.5, -84.1), (21.6, -84.1), (22, -84.5)])
sketch14.addGeometry(Part.LineSegment(V(22, -82, 0), V(14.5, -82, 0)), True)
sketch14.addConstraint([
    Sketcher.Constraint("Horizontal", 0),
    Sketcher.Constraint("Vertical", 1),
    Sketcher.Constraint("Horizontal", 2),
    Sketcher.Constraint("Vertical", 4),
    Sketcher.Constraint("Horizontal", 5),
    Sketcher.Constraint("Coincident", 5, 1, 4, 2),
    Sketcher.Constraint("Vertical", 1, 2, 5, 2),
    Sketcher.Constraint("Angle", 3, Q("-45 deg")),
    Sketcher.Constraint("DistanceX", 0, 2, 0, 1, 7.5),
    Sketcher.Constraint("DistanceY", 4, 1, 4, 2, 2.5),
    Sketcher.Constraint("DistanceY", 0, 2, -1, 1, 82.0),
    Sketcher.Constraint("DistanceX", -1, 1, 3, 2, 22.0),
    Sketcher.Constraint("DistanceX", 2, 1, 2, 2, 7.067),
])
groove6 = body.newObject("PartDesign::Groove", "Groove005")
groove6.Profile = sketch14
groove6.ReferenceAxis = (sketch14, ["Axis0"])
groove6.Angle = 360

sketch15 = body.newObject("Sketcher::SketchObject", "Sketch014")
sketch15.AttachmentSupport = (doc.getObject("YZ_Plane"), [""])
sketch15.MapMode = "FlatFace"
sketch15.AttachmentOffset = App.Placement(V(0, 0, 39), App.Rotation())
add_polygon(sketch15, [(22, -97), (14.5, -97), (14.5, -99.1), (21.6, -99.1), (22, -99.5)])
sketch15.addGeometry(Part.LineSegment(V(22, -97, 0), V(14.5, -97, 0)), True)
sketch15.addConstraint([
    Sketcher.Constraint("Horizontal", 0),
    Sketcher.Constraint("Vertical", 1),
    Sketcher.Constraint("Horizontal", 2),
    Sketcher.Constraint("Vertical", 4),
    Sketcher.Constraint("Horizontal", 5),
    Sketcher.Constraint("Coincident", 5, 1, 4, 2),
    Sketcher.Constraint("Vertical", 1, 2, 5, 2),
    Sketcher.Constraint("Angle", 3, Q("-45 deg")),
    Sketcher.Constraint("DistanceX", 0, 2, 0, 1, 7.5),
    Sketcher.Constraint("DistanceY", 4, 1, 4, 2, 2.5),
    Sketcher.Constraint("DistanceY", 0, 2, -1, 1, 97.0),
    Sketcher.Constraint("DistanceX", -1, 1, 3, 2, 22.0),
    Sketcher.Constraint("DistanceX", 2, 1, 2, 2, 7.067),
])
groove7 = body.newObject("PartDesign::Groove", "Groove006")
groove7.Profile = sketch15
groove7.ReferenceAxis = (sketch15, ["Axis0"])
groove7.Angle = 360

sketch16 = body.newObject("Sketcher::SketchObject", "Sketch015")
sketch16.AttachmentSupport = (doc.getObject("YZ_Plane"), [""])
sketch16.MapMode = "FlatFace"
sketch16.AttachmentOffset = App.Placement(V(0, 0, 7), App.Rotation())
add_polygon(sketch16, [(22, -97), (14.5, -97), (14.5, -99.1), (21.6, -99.1), (22, -99.5)])
sketch16.addGeometry(Part.LineSegment(V(22, -97, 0), V(14.5, -97, 0)), True)
sketch16.addConstraint([
    Sketcher.Constraint("Horizontal", 0),
    Sketcher.Constraint("Vertical", 1),
    Sketcher.Constraint("Horizontal", 2),
    Sketcher.Constraint("Vertical", 4),
    Sketcher.Constraint("Horizontal", 5),
    Sketcher.Constraint("Coincident", 5, 1, 4, 2),
    Sketcher.Constraint("Vertical", 1, 2, 5, 2),
    Sketcher.Constraint("Angle", 3, Q("-45 deg")),
    Sketcher.Constraint("DistanceX", 0, 2, 0, 1, 7.5),
    Sketcher.Constraint("DistanceY", 4, 1, 4, 2, 2.5),
    Sketcher.Constraint("DistanceY", 0, 2, -1, 1, 97.0),
    Sketcher.Constraint("DistanceX", -1, 1, 3, 2, 22.0),
    Sketcher.Constraint("DistanceX", 2, 1, 2, 2, 7.067),
])
groove8 = body.newObject("PartDesign::Groove", "Groove007")
groove8.Profile = sketch16
groove8.ReferenceAxis = (sketch16, ["Axis0"])
groove8.Angle = 360

sketch17 = body.newObject("Sketcher::SketchObject", "Sketch016")
sketch17.AttachmentSupport = (doc.getObject("YZ_Plane"), [""])
sketch17.MapMode = "FlatFace"
sketch17.AttachmentOffset = App.Placement(V(0, 0, 23), App.Rotation())
add_polygon(sketch17, [(13.4, -40), (22, -40), (22, -35.5), (19.9, -35.5), (19.9, -37), (19.4, -37.5), (13.4, -37.5)])
sketch17.addGeometry(Part.LineSegment(V(13.4, -40, 0), V(22, -40, 0)), True)
sketch17.addConstraint([
    Sketcher.Constraint("Horizontal", 0),
    Sketcher.Constraint("Vertical", 1),
    Sketcher.Constraint("Horizontal", 2),
    Sketcher.Constraint("Vertical", 3),
    Sketcher.Constraint("Horizontal", 5),
    Sketcher.Constraint("Vertical", 6),
    Sketcher.Constraint("Horizontal", 7),
    Sketcher.Constraint("Coincident", 7, 1, 6, 2),
    Sketcher.Constraint("Vertical", 1, 2, 7, 2),
    Sketcher.Constraint("Angle", 4, Q("-135 deg")),
    Sketcher.Constraint("DistanceX", 0, 1, 0, 2, 8.6),
    Sketcher.Constraint("DistanceX", 2, 2, 2, 1, 2.1),
    Sketcher.Constraint("DistanceY", 1, 1, 1, 2, 4.5),
    Sketcher.Constraint("DistanceY", 3, 2, 3, 1, 1.5),
    Sketcher.Constraint("DistanceX", -1, 1, 0, 2, 22.0),
    Sketcher.Constraint("DistanceY", 0, 2, -1, 1, 40.0),
    Sketcher.Constraint("DistanceX", 5, 2, 5, 1, 5.9585),
])
groove9 = body.newObject("PartDesign::Groove", "Groove008")
groove9.Profile = sketch17
groove9.ReferenceAxis = (sketch17, ["Axis0"])
groove9.Angle = 360

sketch18 = body.newObject("Sketcher::SketchObject", "Sketch017")
sketch18.AttachmentSupport = (doc.getObject("YZ_Plane"), [""])
sketch18.MapMode = "FlatFace"
sketch18.AttachmentOffset = App.Placement(V(0, 0, 23), App.Rotation())
add_polygon(sketch18, [(13.4, -80), (22, -80), (22, -75.5), (19.9, -75.5), (19.9, -77), (19.4, -77.5), (13.4, -77.5)])
sketch18.addGeometry(Part.LineSegment(V(13.4, -80, 0), V(22, -80, 0)), True)
sketch18.addConstraint([
    Sketcher.Constraint("Horizontal", 0),
    Sketcher.Constraint("Vertical", 1),
    Sketcher.Constraint("Horizontal", 2),
    Sketcher.Constraint("Vertical", 3),
    Sketcher.Constraint("Horizontal", 5),
    Sketcher.Constraint("Vertical", 6),
    Sketcher.Constraint("Horizontal", 7),
    Sketcher.Constraint("Coincident", 7, 1, 6, 2),
    Sketcher.Constraint("Vertical", 1, 2, 7, 2),
    Sketcher.Constraint("Angle", 4, Q("-135 deg")),
    Sketcher.Constraint("DistanceX", 0, 1, 0, 2, 8.6),
    Sketcher.Constraint("DistanceX", 2, 2, 2, 1, 2.1),
    Sketcher.Constraint("DistanceY", 1, 1, 1, 2, 4.5),
    Sketcher.Constraint("DistanceY", 3, 2, 3, 1, 1.5),
    Sketcher.Constraint("DistanceX", -1, 1, 0, 2, 22.0),
    Sketcher.Constraint("DistanceY", 0, 2, -1, 1, 80.0),
    Sketcher.Constraint("DistanceX", 5, 2, 5, 1, 5.9585),
])
groove10 = body.newObject("PartDesign::Groove", "Groove009")
groove10.Profile = sketch18
groove10.ReferenceAxis = (sketch18, ["Axis0"])
groove10.Angle = 360

sketch19 = body.newObject("Sketcher::SketchObject", "Sketch018")
sketch19.AttachmentSupport = (doc.getObject("YZ_Plane"), [""])
sketch19.MapMode = "FlatFace"
sketch19.addGeometry(Part.Circle(V(17, -45, 0), V(0, 0, 1), 2.1), False)
sketch19.addConstraint([
    Sketcher.Constraint("Diameter", 0, 4.134),
    Sketcher.Constraint("DistanceX", -1, 1, 0, 3, 17.0),
    Sketcher.Constraint("DistanceY", 0, 3, -1, 1, 45.0),
])
doc.recompute()
hole3 = body.newObject("PartDesign::Hole", "Hole002")
hole3.Profile = sketch19
hole3.ThreadType = "None"
hole3.Diameter = 4.134
hole3.DepthType = "Dimension"
hole3.Depth = 14
hole3.DrillPoint = "Angled"
hole3.DrillPointAngle = 120
hole3.HoleCutType = "Countersink"
hole3.HoleCutDiameter = 5
hole3.HoleCutCountersinkAngle = 90
hole3.Reversed = True

sketch20 = body.newObject("Sketcher::SketchObject", "Sketch019")
sketch20.AttachmentSupport = (doc.getObject("YZ_Plane"), [""])
sketch20.MapMode = "FlatFace"
sketch20.addGeometry(Part.Circle(V(17, -75, 0), V(0, 0, 1), 2.1), False)
sketch20.addConstraint([
    Sketcher.Constraint("Diameter", 0, 4.134),
    Sketcher.Constraint("DistanceX", -1, 1, 0, 3, 17.0),
    Sketcher.Constraint("DistanceY", 0, 3, -1, 1, 75.0),
])
doc.recompute()
hole4 = body.newObject("PartDesign::Hole", "Hole003")
hole4.Profile = sketch20
hole4.ThreadType = "None"
hole4.Diameter = 4.134
hole4.DepthType = "Dimension"
hole4.Depth = 14
hole4.DrillPoint = "Angled"
hole4.DrillPointAngle = 120
hole4.HoleCutType = "Countersink"
hole4.HoleCutDiameter = 5
hole4.HoleCutCountersinkAngle = 90
hole4.Reversed = True

sketch21 = body.newObject("Sketcher::SketchObject", "Sketch020")
sketch21.AttachmentSupport = (doc.getObject("XZ_Plane"), [""])
sketch21.MapMode = "FlatFace"
sketch21.AttachmentOffset = App.Placement(V(0, 0, -17), App.Rotation())
add_polygon(sketch21, [(0, -30), (2.1, -30), (2.1, -33.5), (0, -33.5)])
sketch21.addGeometry(Part.LineSegment(V(0, -30, 0), V(2.1, -30, 0)), True)
sketch21.addConstraint([
    Sketcher.Constraint("Horizontal", 0),
    Sketcher.Constraint("Vertical", 1),
    Sketcher.Constraint("Horizontal", 2),
    Sketcher.Constraint("Vertical", 3),
    Sketcher.Constraint("Horizontal", 4),
    Sketcher.Constraint("Coincident", 4, 1, 3, 2),
    Sketcher.Constraint("PointOnObject", 2, 2, -2),
    Sketcher.Constraint("Vertical", 1, 2, 4, 2),
    Sketcher.Constraint("DistanceX", 0, 1, 0, 2, 2.1),
    Sketcher.Constraint("DistanceY", 1, 2, 1, 1, 3.5),
    Sketcher.Constraint("DistanceY", 0, 2, -1, 1, 30.0),
])
groove11 = body.newObject("PartDesign::Groove", "Groove010")
groove11.Profile = sketch21
groove11.ReferenceAxis = (sketch21, ["Axis0"])
groove11.Angle = 360

sketch22 = body.newObject("Sketcher::SketchObject", "Sketch021")
sketch22.AttachmentSupport = (doc.getObject("XZ_Plane"), [""])
sketch22.MapMode = "FlatFace"
sketch22.AttachmentOffset = App.Placement(V(0, 0, -17), App.Rotation())
add_polygon(sketch22, [(0, -90), (2.1, -90), (2.1, -93.5), (0, -93.5)])
sketch22.addGeometry(Part.LineSegment(V(0, -90, 0), V(2.1, -90, 0)), True)
sketch22.addConstraint([
    Sketcher.Constraint("Horizontal", 0),
    Sketcher.Constraint("Vertical", 1),
    Sketcher.Constraint("Horizontal", 2),
    Sketcher.Constraint("Vertical", 3),
    Sketcher.Constraint("Horizontal", 4),
    Sketcher.Constraint("Coincident", 4, 1, 3, 2),
    Sketcher.Constraint("PointOnObject", 2, 2, -2),
    Sketcher.Constraint("Vertical", 1, 2, 4, 2),
    Sketcher.Constraint("DistanceX", 0, 1, 0, 2, 2.1),
    Sketcher.Constraint("DistanceY", 1, 2, 1, 1, 3.5),
    Sketcher.Constraint("DistanceY", 0, 2, -1, 1, 90.0),
])
groove12 = body.newObject("PartDesign::Groove", "Groove011")
groove12.Profile = sketch22
groove12.ReferenceAxis = (sketch22, ["Axis0"])
groove12.Angle = 360

doc.recompute()
